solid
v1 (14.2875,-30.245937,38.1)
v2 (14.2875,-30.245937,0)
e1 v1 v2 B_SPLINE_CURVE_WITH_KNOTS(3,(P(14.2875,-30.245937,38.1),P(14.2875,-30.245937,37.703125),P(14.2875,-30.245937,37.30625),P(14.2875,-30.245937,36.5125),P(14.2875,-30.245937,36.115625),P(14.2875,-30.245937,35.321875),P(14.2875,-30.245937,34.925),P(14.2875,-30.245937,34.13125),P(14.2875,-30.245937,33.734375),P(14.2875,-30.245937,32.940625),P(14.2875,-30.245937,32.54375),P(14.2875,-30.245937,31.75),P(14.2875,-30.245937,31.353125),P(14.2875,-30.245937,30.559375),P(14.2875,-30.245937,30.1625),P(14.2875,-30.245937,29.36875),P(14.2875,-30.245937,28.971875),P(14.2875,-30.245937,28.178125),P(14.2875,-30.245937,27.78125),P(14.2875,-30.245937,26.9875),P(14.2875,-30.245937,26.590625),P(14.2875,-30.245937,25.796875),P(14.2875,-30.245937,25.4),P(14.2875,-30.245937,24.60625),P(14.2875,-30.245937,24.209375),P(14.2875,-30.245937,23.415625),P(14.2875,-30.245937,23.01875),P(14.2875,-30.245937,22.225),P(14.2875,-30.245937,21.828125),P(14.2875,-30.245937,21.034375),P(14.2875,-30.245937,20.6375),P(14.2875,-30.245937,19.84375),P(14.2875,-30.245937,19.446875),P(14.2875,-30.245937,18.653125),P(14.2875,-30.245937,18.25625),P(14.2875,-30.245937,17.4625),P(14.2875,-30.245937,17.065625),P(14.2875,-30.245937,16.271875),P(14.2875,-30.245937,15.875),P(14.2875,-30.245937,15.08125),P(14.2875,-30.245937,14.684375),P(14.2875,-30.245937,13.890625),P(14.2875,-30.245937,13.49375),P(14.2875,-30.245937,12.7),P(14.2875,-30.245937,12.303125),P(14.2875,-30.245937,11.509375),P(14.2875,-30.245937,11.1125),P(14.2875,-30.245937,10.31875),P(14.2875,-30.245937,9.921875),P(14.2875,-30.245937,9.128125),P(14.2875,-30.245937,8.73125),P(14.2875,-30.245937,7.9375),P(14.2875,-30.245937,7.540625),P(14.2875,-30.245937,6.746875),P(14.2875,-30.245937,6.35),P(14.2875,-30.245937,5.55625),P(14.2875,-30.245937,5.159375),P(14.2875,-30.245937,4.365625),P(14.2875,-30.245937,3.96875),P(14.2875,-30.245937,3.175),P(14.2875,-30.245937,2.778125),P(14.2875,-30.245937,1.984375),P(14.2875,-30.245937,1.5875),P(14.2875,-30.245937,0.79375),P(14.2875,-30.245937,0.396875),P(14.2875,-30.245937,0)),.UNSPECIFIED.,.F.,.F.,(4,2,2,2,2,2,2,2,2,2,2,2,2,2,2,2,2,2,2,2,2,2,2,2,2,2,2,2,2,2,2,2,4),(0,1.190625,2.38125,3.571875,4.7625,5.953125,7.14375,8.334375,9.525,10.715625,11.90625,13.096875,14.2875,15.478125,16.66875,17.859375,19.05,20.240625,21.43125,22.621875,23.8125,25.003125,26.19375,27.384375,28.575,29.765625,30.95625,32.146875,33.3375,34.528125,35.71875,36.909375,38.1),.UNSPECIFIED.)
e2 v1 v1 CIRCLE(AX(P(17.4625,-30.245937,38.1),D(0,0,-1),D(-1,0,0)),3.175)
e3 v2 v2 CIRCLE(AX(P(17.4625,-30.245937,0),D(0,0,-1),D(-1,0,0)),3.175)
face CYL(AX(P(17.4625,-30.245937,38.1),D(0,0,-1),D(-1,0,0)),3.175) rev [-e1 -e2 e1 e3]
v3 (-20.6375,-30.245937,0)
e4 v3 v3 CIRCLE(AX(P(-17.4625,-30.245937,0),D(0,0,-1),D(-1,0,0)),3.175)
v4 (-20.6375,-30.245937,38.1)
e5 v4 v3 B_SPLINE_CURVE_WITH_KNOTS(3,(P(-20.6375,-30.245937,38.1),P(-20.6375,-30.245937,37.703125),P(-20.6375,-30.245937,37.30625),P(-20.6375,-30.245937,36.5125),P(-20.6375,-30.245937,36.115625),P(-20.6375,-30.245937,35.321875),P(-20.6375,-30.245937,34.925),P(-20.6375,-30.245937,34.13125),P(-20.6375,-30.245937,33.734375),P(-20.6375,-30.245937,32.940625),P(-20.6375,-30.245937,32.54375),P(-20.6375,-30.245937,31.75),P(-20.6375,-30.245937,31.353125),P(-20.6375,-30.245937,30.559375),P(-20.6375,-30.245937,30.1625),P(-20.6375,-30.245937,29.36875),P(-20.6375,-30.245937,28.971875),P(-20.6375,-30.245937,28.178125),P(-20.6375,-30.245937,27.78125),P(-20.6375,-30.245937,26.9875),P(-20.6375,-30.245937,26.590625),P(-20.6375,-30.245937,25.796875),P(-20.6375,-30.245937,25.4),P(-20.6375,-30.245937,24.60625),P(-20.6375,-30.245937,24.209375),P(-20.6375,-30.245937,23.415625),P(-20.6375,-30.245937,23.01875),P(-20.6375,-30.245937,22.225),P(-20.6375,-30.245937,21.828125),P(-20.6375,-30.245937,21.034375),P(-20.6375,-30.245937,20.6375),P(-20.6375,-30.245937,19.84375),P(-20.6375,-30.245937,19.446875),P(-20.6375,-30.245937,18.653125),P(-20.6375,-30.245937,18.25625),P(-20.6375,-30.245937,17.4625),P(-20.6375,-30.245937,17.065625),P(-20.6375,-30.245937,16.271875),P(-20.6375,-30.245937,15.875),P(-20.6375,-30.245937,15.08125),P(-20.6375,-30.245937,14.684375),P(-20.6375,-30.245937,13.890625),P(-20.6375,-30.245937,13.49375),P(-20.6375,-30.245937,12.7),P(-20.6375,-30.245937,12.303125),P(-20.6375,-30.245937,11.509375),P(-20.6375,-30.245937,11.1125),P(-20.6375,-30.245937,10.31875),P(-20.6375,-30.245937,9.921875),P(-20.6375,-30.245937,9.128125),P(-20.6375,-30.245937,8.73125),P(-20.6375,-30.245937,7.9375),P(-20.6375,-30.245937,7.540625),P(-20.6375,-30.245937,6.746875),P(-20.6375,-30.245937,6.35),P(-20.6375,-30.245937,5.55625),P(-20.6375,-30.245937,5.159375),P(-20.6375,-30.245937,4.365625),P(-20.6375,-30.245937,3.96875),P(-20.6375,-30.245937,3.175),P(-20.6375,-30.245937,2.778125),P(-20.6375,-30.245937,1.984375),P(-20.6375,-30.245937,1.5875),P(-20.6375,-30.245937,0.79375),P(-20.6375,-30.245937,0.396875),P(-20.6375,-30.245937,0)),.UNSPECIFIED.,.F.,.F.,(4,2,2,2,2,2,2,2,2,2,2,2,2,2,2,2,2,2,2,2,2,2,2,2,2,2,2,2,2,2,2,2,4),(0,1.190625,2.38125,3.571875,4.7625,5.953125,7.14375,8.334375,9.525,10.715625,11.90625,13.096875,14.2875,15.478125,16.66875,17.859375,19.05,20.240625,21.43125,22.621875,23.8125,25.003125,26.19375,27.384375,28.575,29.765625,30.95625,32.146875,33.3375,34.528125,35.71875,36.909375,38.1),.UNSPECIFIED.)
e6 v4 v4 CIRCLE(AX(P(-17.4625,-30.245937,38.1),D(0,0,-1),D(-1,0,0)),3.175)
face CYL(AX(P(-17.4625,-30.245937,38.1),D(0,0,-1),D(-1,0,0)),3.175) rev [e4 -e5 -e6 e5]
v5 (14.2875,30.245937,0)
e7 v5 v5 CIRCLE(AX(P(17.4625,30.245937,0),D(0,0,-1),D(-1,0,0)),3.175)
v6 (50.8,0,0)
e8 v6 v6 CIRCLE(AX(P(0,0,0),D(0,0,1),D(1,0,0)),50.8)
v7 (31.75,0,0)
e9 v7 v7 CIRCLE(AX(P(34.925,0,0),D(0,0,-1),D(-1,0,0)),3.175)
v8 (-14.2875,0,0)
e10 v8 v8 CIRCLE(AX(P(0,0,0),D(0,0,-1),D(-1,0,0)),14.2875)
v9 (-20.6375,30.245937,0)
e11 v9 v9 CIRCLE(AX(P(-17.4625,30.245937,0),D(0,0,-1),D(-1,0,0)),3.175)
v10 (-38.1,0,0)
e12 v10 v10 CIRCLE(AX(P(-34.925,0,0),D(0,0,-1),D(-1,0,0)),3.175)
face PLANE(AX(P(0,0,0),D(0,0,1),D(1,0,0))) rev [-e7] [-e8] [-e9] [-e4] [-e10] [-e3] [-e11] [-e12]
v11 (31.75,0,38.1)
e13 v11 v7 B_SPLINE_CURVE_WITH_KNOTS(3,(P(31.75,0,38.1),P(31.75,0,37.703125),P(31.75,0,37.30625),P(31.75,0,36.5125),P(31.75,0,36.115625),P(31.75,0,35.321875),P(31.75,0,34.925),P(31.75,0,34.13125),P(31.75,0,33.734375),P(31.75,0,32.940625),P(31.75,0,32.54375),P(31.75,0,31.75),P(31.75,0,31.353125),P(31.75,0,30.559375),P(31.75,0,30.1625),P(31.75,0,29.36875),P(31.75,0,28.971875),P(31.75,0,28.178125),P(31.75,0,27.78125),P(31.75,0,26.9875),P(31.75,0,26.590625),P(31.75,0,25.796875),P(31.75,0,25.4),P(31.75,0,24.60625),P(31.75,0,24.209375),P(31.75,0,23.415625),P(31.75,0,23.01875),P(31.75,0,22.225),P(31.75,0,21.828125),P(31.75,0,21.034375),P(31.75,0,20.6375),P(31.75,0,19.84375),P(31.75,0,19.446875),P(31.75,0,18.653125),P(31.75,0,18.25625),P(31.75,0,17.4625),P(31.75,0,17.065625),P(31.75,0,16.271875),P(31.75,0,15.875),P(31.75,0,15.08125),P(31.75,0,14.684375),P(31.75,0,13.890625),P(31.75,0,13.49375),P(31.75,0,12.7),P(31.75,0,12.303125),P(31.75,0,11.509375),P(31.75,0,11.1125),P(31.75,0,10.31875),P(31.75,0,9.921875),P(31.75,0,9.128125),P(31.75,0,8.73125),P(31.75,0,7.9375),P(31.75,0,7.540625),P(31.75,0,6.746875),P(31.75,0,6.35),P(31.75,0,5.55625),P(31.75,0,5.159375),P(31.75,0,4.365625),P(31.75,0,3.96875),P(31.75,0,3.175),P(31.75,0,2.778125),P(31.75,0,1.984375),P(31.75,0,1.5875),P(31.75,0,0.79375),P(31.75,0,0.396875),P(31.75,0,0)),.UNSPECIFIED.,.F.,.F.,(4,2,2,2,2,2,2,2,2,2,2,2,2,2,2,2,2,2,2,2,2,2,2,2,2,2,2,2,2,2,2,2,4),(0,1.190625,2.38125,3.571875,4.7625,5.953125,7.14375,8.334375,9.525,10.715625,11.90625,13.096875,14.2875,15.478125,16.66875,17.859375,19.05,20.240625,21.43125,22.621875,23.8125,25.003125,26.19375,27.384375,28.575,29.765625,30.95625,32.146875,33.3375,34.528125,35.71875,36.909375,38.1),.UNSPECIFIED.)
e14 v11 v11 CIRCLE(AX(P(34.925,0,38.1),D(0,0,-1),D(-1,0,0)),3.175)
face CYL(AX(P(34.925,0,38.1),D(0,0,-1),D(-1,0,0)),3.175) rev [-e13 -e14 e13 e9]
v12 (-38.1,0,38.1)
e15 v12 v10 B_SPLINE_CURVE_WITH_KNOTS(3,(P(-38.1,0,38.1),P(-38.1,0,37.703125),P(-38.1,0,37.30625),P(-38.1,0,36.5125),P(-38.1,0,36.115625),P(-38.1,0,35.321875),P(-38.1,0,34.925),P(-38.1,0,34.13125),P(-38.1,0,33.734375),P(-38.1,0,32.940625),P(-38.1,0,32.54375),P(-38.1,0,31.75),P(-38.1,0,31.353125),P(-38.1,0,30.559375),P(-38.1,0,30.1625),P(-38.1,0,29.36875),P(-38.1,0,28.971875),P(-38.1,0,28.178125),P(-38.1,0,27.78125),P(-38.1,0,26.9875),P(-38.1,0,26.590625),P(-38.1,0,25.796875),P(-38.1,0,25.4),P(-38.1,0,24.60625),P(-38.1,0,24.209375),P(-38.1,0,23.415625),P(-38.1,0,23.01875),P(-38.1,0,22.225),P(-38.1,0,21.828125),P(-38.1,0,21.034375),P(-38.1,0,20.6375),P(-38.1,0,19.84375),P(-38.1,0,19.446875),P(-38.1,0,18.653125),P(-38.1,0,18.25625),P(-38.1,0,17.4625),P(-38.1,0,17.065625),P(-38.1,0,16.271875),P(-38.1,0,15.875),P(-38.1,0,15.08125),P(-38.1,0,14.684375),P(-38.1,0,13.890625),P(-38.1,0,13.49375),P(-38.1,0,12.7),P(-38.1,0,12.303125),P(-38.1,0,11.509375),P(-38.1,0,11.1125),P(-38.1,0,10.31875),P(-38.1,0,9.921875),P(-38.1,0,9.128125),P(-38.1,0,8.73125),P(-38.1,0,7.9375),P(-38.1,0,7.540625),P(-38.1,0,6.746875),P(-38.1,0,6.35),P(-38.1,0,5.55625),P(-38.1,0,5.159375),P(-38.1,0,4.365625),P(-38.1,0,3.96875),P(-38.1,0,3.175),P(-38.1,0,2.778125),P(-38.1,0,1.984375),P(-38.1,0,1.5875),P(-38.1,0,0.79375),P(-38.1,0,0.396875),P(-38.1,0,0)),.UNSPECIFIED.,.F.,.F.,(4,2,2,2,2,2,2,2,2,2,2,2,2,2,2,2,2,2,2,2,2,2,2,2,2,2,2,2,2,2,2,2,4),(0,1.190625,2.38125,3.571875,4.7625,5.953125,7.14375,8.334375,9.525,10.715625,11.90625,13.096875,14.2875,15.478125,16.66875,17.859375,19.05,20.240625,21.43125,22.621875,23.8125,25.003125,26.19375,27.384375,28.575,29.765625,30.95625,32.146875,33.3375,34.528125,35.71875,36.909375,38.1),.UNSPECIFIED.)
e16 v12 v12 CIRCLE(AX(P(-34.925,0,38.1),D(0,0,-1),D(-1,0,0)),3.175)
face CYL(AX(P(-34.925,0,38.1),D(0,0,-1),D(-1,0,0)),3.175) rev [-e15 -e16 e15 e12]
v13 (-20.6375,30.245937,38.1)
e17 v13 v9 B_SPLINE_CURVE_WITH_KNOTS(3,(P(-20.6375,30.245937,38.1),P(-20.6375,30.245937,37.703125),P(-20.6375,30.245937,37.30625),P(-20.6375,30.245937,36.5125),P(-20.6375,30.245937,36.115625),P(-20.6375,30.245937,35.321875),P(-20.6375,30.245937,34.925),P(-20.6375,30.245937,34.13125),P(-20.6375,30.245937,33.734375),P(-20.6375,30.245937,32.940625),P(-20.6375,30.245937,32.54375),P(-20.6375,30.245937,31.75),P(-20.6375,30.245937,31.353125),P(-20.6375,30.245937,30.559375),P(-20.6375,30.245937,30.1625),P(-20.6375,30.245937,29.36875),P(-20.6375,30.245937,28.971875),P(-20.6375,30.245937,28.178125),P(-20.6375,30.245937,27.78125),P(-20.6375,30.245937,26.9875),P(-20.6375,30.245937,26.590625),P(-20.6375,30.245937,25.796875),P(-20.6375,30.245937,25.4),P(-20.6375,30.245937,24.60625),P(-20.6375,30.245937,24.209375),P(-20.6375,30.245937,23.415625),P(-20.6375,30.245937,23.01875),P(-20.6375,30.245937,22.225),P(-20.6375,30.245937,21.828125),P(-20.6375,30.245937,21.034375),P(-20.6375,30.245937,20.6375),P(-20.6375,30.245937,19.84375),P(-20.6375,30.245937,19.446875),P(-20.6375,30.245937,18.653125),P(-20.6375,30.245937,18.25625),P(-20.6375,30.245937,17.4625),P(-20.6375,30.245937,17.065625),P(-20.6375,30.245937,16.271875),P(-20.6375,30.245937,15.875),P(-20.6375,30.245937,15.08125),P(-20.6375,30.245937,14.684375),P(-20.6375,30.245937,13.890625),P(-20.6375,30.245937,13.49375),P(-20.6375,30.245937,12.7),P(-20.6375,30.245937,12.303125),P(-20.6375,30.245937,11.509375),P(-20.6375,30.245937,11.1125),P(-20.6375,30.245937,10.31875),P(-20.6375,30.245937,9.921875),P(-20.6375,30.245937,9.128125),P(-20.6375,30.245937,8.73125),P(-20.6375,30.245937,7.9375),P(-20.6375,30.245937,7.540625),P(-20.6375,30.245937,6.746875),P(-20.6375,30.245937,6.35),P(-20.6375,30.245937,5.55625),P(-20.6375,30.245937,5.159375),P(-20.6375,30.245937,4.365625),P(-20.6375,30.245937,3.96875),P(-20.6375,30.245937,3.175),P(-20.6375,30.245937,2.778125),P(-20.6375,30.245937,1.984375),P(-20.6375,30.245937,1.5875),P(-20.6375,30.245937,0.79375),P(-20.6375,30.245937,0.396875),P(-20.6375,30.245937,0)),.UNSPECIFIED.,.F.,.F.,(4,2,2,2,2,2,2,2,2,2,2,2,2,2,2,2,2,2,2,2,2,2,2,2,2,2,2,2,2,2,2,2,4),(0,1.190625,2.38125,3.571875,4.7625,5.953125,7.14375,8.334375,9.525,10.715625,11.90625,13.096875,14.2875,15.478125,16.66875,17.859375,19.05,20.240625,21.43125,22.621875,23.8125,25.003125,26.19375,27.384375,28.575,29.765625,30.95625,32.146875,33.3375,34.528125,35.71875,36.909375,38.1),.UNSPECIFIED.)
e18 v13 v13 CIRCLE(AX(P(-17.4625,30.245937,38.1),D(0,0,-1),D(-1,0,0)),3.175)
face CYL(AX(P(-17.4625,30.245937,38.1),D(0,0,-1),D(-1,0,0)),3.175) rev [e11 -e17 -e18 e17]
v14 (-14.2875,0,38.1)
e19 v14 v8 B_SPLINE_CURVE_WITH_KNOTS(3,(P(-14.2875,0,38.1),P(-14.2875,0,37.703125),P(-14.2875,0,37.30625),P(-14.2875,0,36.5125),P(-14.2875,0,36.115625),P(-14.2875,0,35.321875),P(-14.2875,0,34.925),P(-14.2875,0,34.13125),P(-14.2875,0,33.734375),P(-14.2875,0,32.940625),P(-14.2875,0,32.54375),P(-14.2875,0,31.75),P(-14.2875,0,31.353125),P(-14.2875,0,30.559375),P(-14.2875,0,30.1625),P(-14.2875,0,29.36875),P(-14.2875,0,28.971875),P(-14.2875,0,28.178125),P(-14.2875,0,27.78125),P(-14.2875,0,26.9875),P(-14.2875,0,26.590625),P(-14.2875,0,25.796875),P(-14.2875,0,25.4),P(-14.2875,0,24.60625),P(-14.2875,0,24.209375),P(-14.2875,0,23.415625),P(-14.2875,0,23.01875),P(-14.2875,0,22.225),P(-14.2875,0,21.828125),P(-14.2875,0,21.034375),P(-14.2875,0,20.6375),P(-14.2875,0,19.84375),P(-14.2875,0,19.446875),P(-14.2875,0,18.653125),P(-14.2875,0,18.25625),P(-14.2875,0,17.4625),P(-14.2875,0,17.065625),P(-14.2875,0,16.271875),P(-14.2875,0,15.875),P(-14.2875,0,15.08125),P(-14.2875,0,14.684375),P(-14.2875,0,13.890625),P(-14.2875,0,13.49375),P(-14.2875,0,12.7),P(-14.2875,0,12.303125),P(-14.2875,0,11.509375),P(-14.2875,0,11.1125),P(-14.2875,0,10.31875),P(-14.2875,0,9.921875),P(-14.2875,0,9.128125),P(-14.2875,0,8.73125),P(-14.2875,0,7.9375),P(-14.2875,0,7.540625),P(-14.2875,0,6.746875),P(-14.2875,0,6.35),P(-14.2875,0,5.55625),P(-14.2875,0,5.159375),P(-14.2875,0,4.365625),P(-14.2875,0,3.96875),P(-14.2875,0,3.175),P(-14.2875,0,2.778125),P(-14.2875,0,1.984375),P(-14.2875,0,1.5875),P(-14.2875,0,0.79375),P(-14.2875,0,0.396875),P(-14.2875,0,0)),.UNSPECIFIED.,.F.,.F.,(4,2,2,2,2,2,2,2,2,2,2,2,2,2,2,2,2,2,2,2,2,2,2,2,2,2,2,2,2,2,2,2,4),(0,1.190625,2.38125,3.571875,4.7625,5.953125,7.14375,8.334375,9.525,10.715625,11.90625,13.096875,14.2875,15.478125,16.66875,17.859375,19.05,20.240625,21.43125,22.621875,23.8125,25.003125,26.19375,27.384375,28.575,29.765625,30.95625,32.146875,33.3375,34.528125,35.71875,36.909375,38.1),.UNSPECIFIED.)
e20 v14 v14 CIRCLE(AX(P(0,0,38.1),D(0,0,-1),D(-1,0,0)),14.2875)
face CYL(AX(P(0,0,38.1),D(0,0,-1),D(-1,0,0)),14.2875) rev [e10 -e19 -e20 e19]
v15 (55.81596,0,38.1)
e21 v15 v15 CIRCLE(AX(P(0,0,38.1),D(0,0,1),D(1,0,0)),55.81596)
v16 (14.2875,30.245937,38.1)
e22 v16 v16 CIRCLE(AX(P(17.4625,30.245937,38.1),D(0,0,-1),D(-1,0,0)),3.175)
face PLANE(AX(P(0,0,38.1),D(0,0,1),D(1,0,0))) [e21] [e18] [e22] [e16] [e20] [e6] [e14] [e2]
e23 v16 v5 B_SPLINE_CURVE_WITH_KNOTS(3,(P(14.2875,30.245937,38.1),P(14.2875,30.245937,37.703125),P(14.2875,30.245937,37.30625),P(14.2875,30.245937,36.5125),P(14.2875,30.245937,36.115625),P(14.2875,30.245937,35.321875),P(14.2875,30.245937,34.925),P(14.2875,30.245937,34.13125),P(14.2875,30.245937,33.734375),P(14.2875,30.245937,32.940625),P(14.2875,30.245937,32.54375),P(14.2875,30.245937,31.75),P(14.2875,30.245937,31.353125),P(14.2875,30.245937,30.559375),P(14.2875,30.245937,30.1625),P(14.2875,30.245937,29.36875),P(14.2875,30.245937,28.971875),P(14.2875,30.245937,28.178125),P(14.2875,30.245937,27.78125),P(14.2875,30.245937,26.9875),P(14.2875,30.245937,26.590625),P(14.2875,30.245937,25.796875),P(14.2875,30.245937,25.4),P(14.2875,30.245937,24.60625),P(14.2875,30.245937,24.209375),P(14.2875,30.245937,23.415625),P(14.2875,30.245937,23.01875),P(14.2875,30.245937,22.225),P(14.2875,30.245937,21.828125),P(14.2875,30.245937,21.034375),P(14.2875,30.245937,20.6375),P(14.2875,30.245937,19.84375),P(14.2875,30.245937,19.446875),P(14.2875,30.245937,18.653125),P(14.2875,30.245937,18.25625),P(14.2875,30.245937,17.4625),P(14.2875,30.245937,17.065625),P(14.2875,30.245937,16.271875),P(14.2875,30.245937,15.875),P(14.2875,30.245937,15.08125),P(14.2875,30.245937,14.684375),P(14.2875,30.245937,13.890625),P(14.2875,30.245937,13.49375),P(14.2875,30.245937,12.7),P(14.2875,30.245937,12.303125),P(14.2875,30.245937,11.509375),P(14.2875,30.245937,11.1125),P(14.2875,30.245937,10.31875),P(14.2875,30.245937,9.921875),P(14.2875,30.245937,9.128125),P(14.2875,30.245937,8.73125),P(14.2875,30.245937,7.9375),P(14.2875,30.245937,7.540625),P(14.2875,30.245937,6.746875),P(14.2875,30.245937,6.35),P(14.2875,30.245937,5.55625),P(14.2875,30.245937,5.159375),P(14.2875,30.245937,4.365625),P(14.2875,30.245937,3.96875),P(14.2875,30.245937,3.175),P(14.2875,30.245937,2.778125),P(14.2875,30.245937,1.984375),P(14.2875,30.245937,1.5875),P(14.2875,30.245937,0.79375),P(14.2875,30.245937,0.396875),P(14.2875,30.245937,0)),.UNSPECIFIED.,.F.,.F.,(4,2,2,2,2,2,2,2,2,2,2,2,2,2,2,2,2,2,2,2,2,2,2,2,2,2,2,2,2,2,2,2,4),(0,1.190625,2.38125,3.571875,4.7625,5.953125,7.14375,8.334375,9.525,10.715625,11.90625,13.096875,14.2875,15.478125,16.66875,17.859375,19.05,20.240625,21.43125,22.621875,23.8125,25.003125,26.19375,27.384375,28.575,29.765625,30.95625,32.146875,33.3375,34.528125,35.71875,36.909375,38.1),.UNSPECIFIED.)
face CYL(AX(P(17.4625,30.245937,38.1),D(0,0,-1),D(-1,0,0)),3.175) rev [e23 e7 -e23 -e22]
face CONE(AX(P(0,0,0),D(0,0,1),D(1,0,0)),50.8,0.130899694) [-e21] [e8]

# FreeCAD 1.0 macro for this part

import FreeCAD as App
import Part
import Sketcher
from FreeCAD import Vector
Q = App.Units.Quantity


def faces_at(feature, points):
    """Names of the faces that lie closest to the given points."""
    faces = feature.Shape.Faces
    near = lambda p: min(range(len(faces)), key=lambda i: faces[i].distToShape(Part.Vertex(*p))[0])
    return sorted({f"Face{near(p) + 1}" for p in points})

doc = App.newDocument("Part")
body = doc.addObject("PartDesign::Body", "Body")

# Sketch on XY plane
sketch1 = body.newObject("Sketcher::SketchObject", "Sketch")
sketch1.AttachmentSupport = (doc.getObject("XY_Plane"), [""])
sketch1.MapMode = "FlatFace"
sketch1.addGeometry(Part.Circle(Vector(0, 0, 0), Vector(0, 0, 1), 51), False)
sketch1.addConstraint(Sketcher.Constraint("Coincident", 0, 3, -1, 1))
sketch1.addConstraint(Sketcher.Constraint("Diameter", 0, Q("4 in")))
pad1 = body.newObject("PartDesign::Pad", "Pad")
pad1.Profile = sketch1
pad1.Length = Q("1.5 in")
doc.recompute()

draft = body.newObject("PartDesign::Draft", "Draft")
draft.Base = (pad1, faces_at(pad1, [(-50.8, 0, 19.05)]))
draft.NeutralPlane = (doc.getObject("XY_Plane"), [""])
draft.Angle = 7.5
draft.Reversed = True

# Sketch on XY plane
sketch2 = body.newObject("Sketcher::SketchObject", "Sketch001")
sketch2.AttachmentSupport = (doc.getObject("XY_Plane"), [""])
sketch2.MapMode = "FlatFace"
sketch2.addGeometry(Part.Circle(Vector(0, 0, 0), Vector(0, 0, 1), 14), False)
sketch2.addConstraint(Sketcher.Constraint("Coincident", 0, 3, -1, 1))
sketch2.addConstraint(Sketcher.Constraint("Diameter", 0, Q("1.125 in")))
pocket1 = body.newObject("PartDesign::Pocket", "Pocket")
pocket1.Profile = sketch2
pocket1.Length = Q("1.5 in")
pocket1.Reversed = True

# Sketch on XY plane
sketch3 = body.newObject("Sketcher::SketchObject", "Sketch002")
sketch3.AttachmentSupport = (doc.getObject("XY_Plane"), [""])
sketch3.MapMode = "FlatFace"
sketch3.addGeometry(Part.Circle(Vector(-34.9, 0, 0), Vector(0, 0, 1), 3.2), False)
sketch3.addGeometry(Part.Circle(Vector(-17.5, -30.2, 0), Vector(0, 0, 1), 3.2), False)
sketch3.addGeometry(Part.Circle(Vector(17.5, -30.2, 0), Vector(0, 0, 1), 3.2), False)
sketch3.addGeometry(Part.Circle(Vector(34.9, 0, 0), Vector(0, 0, 1), 3.2), False)
sketch3.addGeometry(Part.Circle(Vector(17.5, 30.2, 0), Vector(0, 0, 1), 3.2), False)
sketch3.addGeometry(Part.Circle(Vector(-17.5, 30.2, 0), Vector(0, 0, 1), 3.2), False)
sketch3.addConstraint(Sketcher.Constraint("Equal", 0, 1))
sketch3.addConstraint(Sketcher.Constraint("Equal", 1, 2))
sketch3.addConstraint(Sketcher.Constraint("Equal", 2, 3))
sketch3.addConstraint(Sketcher.Constraint("Equal", 3, 4))
sketch3.addConstraint(Sketcher.Constraint("Equal", 4, 5))
sketch3.addConstraint(Sketcher.Constraint("Symmetric", 0, 3, 3, 3, -1, 1))
sketch3.addConstraint(Sketcher.Constraint("Symmetric", 1, 3, 4, 3, -1, 1))
sketch3.addConstraint(Sketcher.Constraint("Symmetric", 2, 3, 5, 3, -1, 1))
sketch3.addConstraint(Sketcher.Constraint("Symmetric", 1, 3, 2, 3, -2))
sketch3.addConstraint(Sketcher.Constraint("PointOnObject", 0, 3, -1))
sketch3.addConstraint(Sketcher.Constraint("Diameter", 0, Q("0.25 in")))
sketch3.addConstraint(Sketcher.Constraint("DistanceX", 0, 3, 3, 3, Q("2.75 in")))
sketch3.addConstraint(Sketcher.Constraint("DistanceX", 1, 3, -1, 1, Q("0.6875 in")))
sketch3.addConstraint(Sketcher.Constraint("DistanceY", 1, 3, -1, 1, Q("30.245937 mm")))
pocket2 = body.newObject("PartDesign::Pocket", "Pocket001")
pocket2.Profile = sketch3
pocket2.Length = Q("1.5 in")
pocket2.Reversed = True

doc.recompute()
